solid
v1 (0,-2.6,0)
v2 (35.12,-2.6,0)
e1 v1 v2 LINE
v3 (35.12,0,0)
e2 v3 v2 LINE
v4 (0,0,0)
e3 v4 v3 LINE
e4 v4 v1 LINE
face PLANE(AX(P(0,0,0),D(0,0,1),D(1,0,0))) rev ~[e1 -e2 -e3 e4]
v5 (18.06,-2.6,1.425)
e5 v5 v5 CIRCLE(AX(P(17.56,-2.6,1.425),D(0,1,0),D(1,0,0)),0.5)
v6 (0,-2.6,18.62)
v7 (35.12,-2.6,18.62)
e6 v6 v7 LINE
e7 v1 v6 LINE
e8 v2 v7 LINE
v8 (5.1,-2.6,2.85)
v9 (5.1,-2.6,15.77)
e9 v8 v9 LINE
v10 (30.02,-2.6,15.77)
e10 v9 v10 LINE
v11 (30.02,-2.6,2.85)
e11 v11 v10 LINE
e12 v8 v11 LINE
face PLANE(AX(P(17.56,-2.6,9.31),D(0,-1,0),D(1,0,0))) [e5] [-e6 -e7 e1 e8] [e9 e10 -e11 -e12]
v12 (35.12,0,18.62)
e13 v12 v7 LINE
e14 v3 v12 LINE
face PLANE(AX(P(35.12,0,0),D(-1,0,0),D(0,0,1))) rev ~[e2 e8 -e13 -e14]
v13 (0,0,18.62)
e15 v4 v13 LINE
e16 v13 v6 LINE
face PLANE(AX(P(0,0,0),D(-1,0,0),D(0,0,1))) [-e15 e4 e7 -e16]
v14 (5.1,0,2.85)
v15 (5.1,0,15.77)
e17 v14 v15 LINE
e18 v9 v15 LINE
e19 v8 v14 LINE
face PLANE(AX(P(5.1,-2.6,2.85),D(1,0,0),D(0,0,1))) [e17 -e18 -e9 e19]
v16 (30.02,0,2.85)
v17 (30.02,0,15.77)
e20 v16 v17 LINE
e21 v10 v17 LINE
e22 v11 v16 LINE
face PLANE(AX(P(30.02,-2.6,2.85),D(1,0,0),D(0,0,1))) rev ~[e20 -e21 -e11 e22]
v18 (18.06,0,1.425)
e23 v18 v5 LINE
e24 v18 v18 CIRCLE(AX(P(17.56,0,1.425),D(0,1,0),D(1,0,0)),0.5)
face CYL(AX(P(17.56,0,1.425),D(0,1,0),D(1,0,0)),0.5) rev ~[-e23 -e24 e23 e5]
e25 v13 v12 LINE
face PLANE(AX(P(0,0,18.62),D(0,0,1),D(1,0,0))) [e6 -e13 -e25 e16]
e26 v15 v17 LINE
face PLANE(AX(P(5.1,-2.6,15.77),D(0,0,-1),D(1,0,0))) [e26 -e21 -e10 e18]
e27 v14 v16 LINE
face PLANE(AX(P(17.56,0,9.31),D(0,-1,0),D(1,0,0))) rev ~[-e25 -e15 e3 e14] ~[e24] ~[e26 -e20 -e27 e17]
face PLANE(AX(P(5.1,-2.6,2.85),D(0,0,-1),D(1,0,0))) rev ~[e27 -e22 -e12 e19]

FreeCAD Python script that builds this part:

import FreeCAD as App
import Part
import Sketcher


def add_polygon(sketch, points):
    """Adds a closed chain of lines whose ends are joined by coincident constraints."""
    first, n = sketch.GeometryCount, len(points)
    for a, b in zip(points, points[1:] + points[:1]):
        sketch.addGeometry(Part.LineSegment(App.Vector(*a, 0), App.Vector(*b, 0)), False)
    for i in range(n):
        sketch.addConstraint(Sketcher.Constraint("Coincident", first + i, 2, first + (i + 1) % n, 1))

doc = App.newDocument("Part")
body = doc.addObject("PartDesign::Body", "Body")

sketch1 = body.newObject("Sketcher::SketchObject", "Sketch")
sketch1.AttachmentSupport = (doc.getObject("XZ_Plane"), [""])
sketch1.MapMode = "FlatFace"
add_polygon(sketch1, [(0, 19), (0, 0), (35, 0), (35, 19)])
sketch1.addConstraint([
    Sketcher.Constraint("Vertical", 0),
    Sketcher.Constraint("Horizontal", 1),
    Sketcher.Constraint("Vertical", 2),
    Sketcher.Constraint("Horizontal", 3),
    Sketcher.Constraint("Coincident", 0, 2, -1, 1),
    Sketcher.Constraint("DistanceX", 1, 1, 1, 2, 35.12),
    Sketcher.Constraint("DistanceY", 0, 2, 0, 1, 18.62),
])
pad1 = body.newObject("PartDesign::Pad", "Pad")
pad1.Profile = sketch1
pad1.Length = 2.6

sketch2 = body.newObject("Sketcher::SketchObject", "Sketch001")
sketch2.AttachmentSupport = (doc.getObject("XZ_Plane"), [""])
sketch2.MapMode = "FlatFace"
sketch2.AttachmentOffset = App.Placement(App.Vector(0, 0, 2.6), App.Rotation())
add_polygon(sketch2, [(5, 16), (5, 3), (30, 3), (30, 16)])
sketch2.addConstraint([
    Sketcher.Constraint("Vertical", 0),
    Sketcher.Constraint("Horizontal", 1),
    Sketcher.Constraint("Vertical", 2),
    Sketcher.Constraint("Horizontal", 3),
    Sketcher.Constraint("DistanceX", 1, 1, 1, 2, 24.92),
    Sketcher.Constraint("DistanceY", 0, 2, 0, 1, 12.92),
    Sketcher.Constraint("DistanceX", -1, 1, 0, 2, 5.1),
    Sketcher.Constraint("DistanceY", -1, 1, 0, 2, 2.85),
])
pocket1 = body.newObject("PartDesign::Pocket", "Pocket")
pocket1.Profile = sketch2
pocket1.Length = 2.6

sketch3 = body.newObject("Sketcher::SketchObject", "Sketch002")
sketch3.AttachmentSupport = (doc.getObject("XZ_Plane"), [""])
sketch3.MapMode = "FlatFace"
sketch3.addGeometry(Part.Circle(App.Vector(17.6, 1.4, 0), App.Vector(0, 0, 1), 0.5), False)
add_polygon(sketch3, [(26.9, 6.8), (26.9, 10.3), (29, 10.3), (29, 6.8)])
sketch3.addConstraint([
    Sketcher.Constraint("Vertical", 1),
    Sketcher.Constraint("Horizontal", 2),
    Sketcher.Constraint("Vertical", 3),
    Sketcher.Constraint("Horizontal", 4),
    Sketcher.Constraint("Diameter", 0, 1.0),
    Sketcher.Constraint("DistanceY", 1, 1, 1, 2, 3.5),
    Sketcher.Constraint("DistanceX", 2, 1, 2, 2, 2.01),
    Sketcher.Constraint("DistanceX", -1, 1, 0, 3, 17.56),
    Sketcher.Constraint("DistanceY", -1, 1, 0, 3, 1.425),
    Sketcher.Constraint("DistanceX", -1, 1, 1, 2, 26.948742),
    Sketcher.Constraint("DistanceY", -1, 1, 1, 2, 10.294061),
])
pocket2 = body.newObject("PartDesign::Pocket", "Pocket001")
pocket2.Profile = sketch3
pocket2.Length = 5
pocket2.Reversed = True

doc.recompute()
